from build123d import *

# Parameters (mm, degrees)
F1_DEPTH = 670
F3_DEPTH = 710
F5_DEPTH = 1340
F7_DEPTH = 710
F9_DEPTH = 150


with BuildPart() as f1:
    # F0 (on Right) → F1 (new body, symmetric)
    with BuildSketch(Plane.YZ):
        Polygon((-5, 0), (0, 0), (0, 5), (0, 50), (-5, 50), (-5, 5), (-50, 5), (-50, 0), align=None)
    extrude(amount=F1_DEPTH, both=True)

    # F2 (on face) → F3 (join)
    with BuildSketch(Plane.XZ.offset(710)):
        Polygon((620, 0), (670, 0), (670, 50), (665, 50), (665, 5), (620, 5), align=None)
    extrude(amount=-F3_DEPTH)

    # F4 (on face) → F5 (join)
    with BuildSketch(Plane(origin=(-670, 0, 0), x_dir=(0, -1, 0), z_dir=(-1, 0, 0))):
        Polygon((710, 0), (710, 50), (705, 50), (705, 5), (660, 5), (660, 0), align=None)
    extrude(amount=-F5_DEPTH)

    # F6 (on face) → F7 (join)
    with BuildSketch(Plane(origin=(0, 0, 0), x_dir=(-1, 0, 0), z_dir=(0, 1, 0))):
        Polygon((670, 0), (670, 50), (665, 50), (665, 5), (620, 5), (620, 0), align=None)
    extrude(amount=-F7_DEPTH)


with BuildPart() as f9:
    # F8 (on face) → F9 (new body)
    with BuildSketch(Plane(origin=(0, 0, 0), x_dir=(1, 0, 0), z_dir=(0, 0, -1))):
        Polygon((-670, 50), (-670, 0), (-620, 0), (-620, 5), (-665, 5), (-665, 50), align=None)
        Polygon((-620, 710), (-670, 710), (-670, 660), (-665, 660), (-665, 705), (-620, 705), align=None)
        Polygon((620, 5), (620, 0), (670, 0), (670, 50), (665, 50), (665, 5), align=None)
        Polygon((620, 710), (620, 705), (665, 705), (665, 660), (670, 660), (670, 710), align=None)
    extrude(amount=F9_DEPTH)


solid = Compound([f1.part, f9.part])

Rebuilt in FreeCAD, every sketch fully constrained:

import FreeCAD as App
import Part
import Sketcher
Q = App.Units.Quantity


def add_polygon(sketch, points):
    """Adds a closed chain of lines whose ends are joined by coincident constraints."""
    first, n = sketch.GeometryCount, len(points)
    for a, b in zip(points, points[1:] + points[:1]):
        sketch.addGeometry(Part.LineSegment(App.Vector(*a, 0), App.Vector(*b, 0)), False)
    for i in range(n):
        sketch.addConstraint(Sketcher.Constraint("Coincident", first + i, 2, first + (i + 1) % n, 1))

doc = App.newDocument("Part")
body = doc.addObject("PartDesign::Body", "Body")

# Sketch on YZ plane
sketch1 = body.newObject("Sketcher::SketchObject", "Sketch")
sketch1.AttachmentSupport = (doc.getObject("YZ_Plane"), [""])
sketch1.MapMode = "FlatFace"
add_polygon(sketch1, [(0, 0), (0, 50), (-5, 50), (-5, 5), (-50, 5), (-50, 0)])  # lines 0-5
sketch1.addConstraint(Sketcher.Constraint("Vertical", 0))
sketch1.addConstraint(Sketcher.Constraint("Horizontal", 1))
sketch1.addConstraint(Sketcher.Constraint("Vertical", 2))
sketch1.addConstraint(Sketcher.Constraint("Horizontal", 3))
sketch1.addConstraint(Sketcher.Constraint("Vertical", 4))
sketch1.addConstraint(Sketcher.Constraint("Horizontal", 5))
sketch1.addConstraint(Sketcher.Constraint("Coincident", 5, 2, -1, 1))
sketch1.addConstraint(Sketcher.Constraint("Equal", 5, 0))
sketch1.addConstraint(Sketcher.Constraint("Equal", 3, 2))
sketch1.addConstraint(Sketcher.Constraint("DistanceX", 1, 2, 1, 1, Q("5 mm")))
sketch1.addConstraint(Sketcher.Constraint("DistanceX", 3, 2, 3, 1, Q("45 mm")))
pad1 = body.newObject("PartDesign::Pad", "Pad")
pad1.Profile = sketch1
pad1.Length = 1340
pad1.Midplane = True

# Sketch on XZ plane
sketch2 = body.newObject("Sketcher::SketchObject", "Sketch001")
sketch2.AttachmentSupport = (doc.getObject("XZ_Plane"), [""])
sketch2.MapMode = "FlatFace"
sketch2.AttachmentOffset = App.Placement(App.Vector(0, 0, 710), App.Rotation())
add_polygon(sketch2, [(620, 0), (670, 0), (670, 50), (665, 50), (665, 5), (620, 5)])  # lines 0-5
sketch2.addConstraint(Sketcher.Constraint("Horizontal", 0))
sketch2.addConstraint(Sketcher.Constraint("Vertical", 1))
sketch2.addConstraint(Sketcher.Constraint("Horizontal", 2))
sketch2.addConstraint(Sketcher.Constraint("Vertical", 3))
sketch2.addConstraint(Sketcher.Constraint("Horizontal", 4))
sketch2.addConstraint(Sketcher.Constraint("Vertical", 5))
sketch2.addConstraint(Sketcher.Constraint("PointOnObject", 0, 2, -1))
sketch2.addConstraint(Sketcher.Constraint("Equal", 0, 1))
sketch2.addConstraint(Sketcher.Constraint("Equal", 4, 3))
sketch2.addConstraint(Sketcher.Constraint("DistanceX", 0, 1, 0, 2, Q("50 mm")))
sketch2.addConstraint(Sketcher.Constraint("DistanceX", 2, 2, 2, 1, Q("5 mm")))
sketch2.addConstraint(Sketcher.Constraint("DistanceX", -1, 1, 0, 2, Q("670 mm")))
pad2 = body.newObject("PartDesign::Pad", "Pad001")
pad2.Profile = sketch2
pad2.Length = 710
pad2.Reversed = True

# Sketch on YZ plane
sketch3 = body.newObject("Sketcher::SketchObject", "Sketch002")
sketch3.AttachmentSupport = (doc.getObject("YZ_Plane"), [""])
sketch3.MapMode = "FlatFace"
sketch3.AttachmentOffset = App.Placement(App.Vector(0, 0, -670), App.Rotation())
add_polygon(sketch3, [(-710, 0), (-710, 50), (-705, 50), (-705, 5), (-660, 5), (-660, 0)])  # lines 0-5
sketch3.addConstraint(Sketcher.Constraint("Vertical", 0))
sketch3.addConstraint(Sketcher.Constraint("Horizontal", 1))
sketch3.addConstraint(Sketcher.Constraint("Vertical", 2))
sketch3.addConstraint(Sketcher.Constraint("Horizontal", 3))
sketch3.addConstraint(Sketcher.Constraint("Vertical", 4))
sketch3.addConstraint(Sketcher.Constraint("Horizontal", 5))
sketch3.addConstraint(Sketcher.Constraint("PointOnObject", 4, 2, -1))
sketch3.addConstraint(Sketcher.Constraint("Equal", 5, 0))
sketch3.addConstraint(Sketcher.Constraint("Equal", 3, 2))
sketch3.addConstraint(Sketcher.Constraint("DistanceX", 1, 1, 1, 2, Q("5 mm")))
sketch3.addConstraint(Sketcher.Constraint("DistanceX", 3, 1, 3, 2, Q("45 mm")))
sketch3.addConstraint(Sketcher.Constraint("DistanceX", 0, 2, -1, 1, Q("710 mm")))
pad3 = body.newObject("PartDesign::Pad", "Pad002")
pad3.Profile = sketch3
pad3.Length = 1340

# Sketch on XZ plane
sketch4 = body.newObject("Sketcher::SketchObject", "Sketch003")
sketch4.AttachmentSupport = (doc.getObject("XZ_Plane"), [""])
sketch4.MapMode = "FlatFace"
add_polygon(sketch4, [(-670, 0), (-670, 50), (-665, 50), (-665, 5), (-620, 5), (-620, 0)])  # lines 0-5
sketch4.addConstraint(Sketcher.Constraint("Vertical", 0))
sketch4.addConstraint(Sketcher.Constraint("Horizontal", 1))
sketch4.addConstraint(Sketcher.Constraint("Vertical", 2))
sketch4.addConstraint(Sketcher.Constraint("Horizontal", 3))
sketch4.addConstraint(Sketcher.Constraint("Vertical", 4))
sketch4.addConstraint(Sketcher.Constraint("Horizontal", 5))
sketch4.addConstraint(Sketcher.Constraint("PointOnObject", 4, 2, -1))
sketch4.addConstraint(Sketcher.Constraint("Equal", 5, 0))
sketch4.addConstraint(Sketcher.Constraint("Equal", 3, 2))
sketch4.addConstraint(Sketcher.Constraint("DistanceX", 1, 1, 1, 2, Q("5 mm")))
sketch4.addConstraint(Sketcher.Constraint("DistanceX", 3, 1, 3, 2, Q("45 mm")))
sketch4.addConstraint(Sketcher.Constraint("DistanceX", 0, 2, -1, 1, Q("670 mm")))
pad4 = body.newObject("PartDesign::Pad", "Pad003")
pad4.Profile = sketch4
pad4.Length = 710
body2 = doc.addObject("PartDesign::Body", "Body001")
body2.AllowCompound = True

# Sketch on XY plane
sketch5 = body2.newObject("Sketcher::SketchObject", "Sketch004")
sketch5.AttachmentSupport = (doc.getObject("XY_Plane001"), [""])
sketch5.MapMode = "FlatFace"
add_polygon(sketch5, [(-670, -50), (-670, 0), (-620, 0), (-620, -5), (-665, -5), (-665, -50)])  # lines 0-5
add_polygon(sketch5, [(-620, -710), (-670, -710), (-670, -660), (-665, -660), (-665, -705), (-620, -705)])  # lines 6-11
add_polygon(sketch5, [(620, -5), (620, 0), (670, 0), (670, -50), (665, -50), (665, -5)])  # lines 12-17
add_polygon(sketch5, [(620, -710), (620, -705), (665, -705), (665, -660), (670, -660), (670, -710)])  # lines 18-23
sketch5.addConstraint(Sketcher.Constraint("Vertical", 0))
sketch5.addConstraint(Sketcher.Constraint("Horizontal", 1))
sketch5.addConstraint(Sketcher.Constraint("Vertical", 2))
sketch5.addConstraint(Sketcher.Constraint("Horizontal", 3))
sketch5.addConstraint(Sketcher.Constraint("Vertical", 4))
sketch5.addConstraint(Sketcher.Constraint("Horizontal", 5))
sketch5.addConstraint(Sketcher.Constraint("Horizontal", 6))
sketch5.addConstraint(Sketcher.Constraint("Vertical", 7))
sketch5.addConstraint(Sketcher.Constraint("Horizontal", 8))
sketch5.addConstraint(Sketcher.Constraint("Vertical", 9))
sketch5.addConstraint(Sketcher.Constraint("Horizontal", 10))
sketch5.addConstraint(Sketcher.Constraint("Vertical", 11))
sketch5.addConstraint(Sketcher.Constraint("Vertical", 12))
sketch5.addConstraint(Sketcher.Constraint("Horizontal", 13))
sketch5.addConstraint(Sketcher.Constraint("Vertical", 14))
sketch5.addConstraint(Sketcher.Constraint("Horizontal", 15))
sketch5.addConstraint(Sketcher.Constraint("Vertical", 16))
sketch5.addConstraint(Sketcher.Constraint("Horizontal", 17))
sketch5.addConstraint(Sketcher.Constraint("Vertical", 18))
sketch5.addConstraint(Sketcher.Constraint("Horizontal", 19))
sketch5.addConstraint(Sketcher.Constraint("Vertical", 20))
sketch5.addConstraint(Sketcher.Constraint("Horizontal", 21))
sketch5.addConstraint(Sketcher.Constraint("Vertical", 22))
sketch5.addConstraint(Sketcher.Constraint("Horizontal", 23))
sketch5.addConstraint(Sketcher.Constraint("Symmetric", 1, 2, 12, 2, -1, 1))
sketch5.addConstraint(Sketcher.Constraint("Symmetric", 0, 2, 13, 2, -2))
sketch5.addConstraint(Sketcher.Constraint("Symmetric", 4, 2, 15, 2, -2))
sketch5.addConstraint(Sketcher.Constraint("Symmetric", 10, 2, 18, 2, -2))
sketch5.addConstraint(Sketcher.Constraint("Symmetric", 8, 2, 20, 2, -2))
sketch5.addConstraint(Sketcher.Constraint("Symmetric", 6, 2, 22, 2, -2))
sketch5.addConstraint(Sketcher.Constraint("Horizontal", 3, 2, 16, 2))
sketch5.addConstraint(Sketcher.Constraint("Vertical", 5, 2, 6, 2))
sketch5.addConstraint(Sketcher.Constraint("Vertical", 4, 2, 8, 2))
sketch5.addConstraint(Sketcher.Constraint("Vertical", 2, 2, 10, 2))
sketch5.addConstraint(Sketcher.Constraint("Equal", 23, 0))
sketch5.addConstraint(Sketcher.Constraint("Equal", 21, 2))
sketch5.addConstraint(Sketcher.Constraint("Equal", 0, 7))
sketch5.addConstraint(Sketcher.Constraint("Equal", 4, 9))
sketch5.addConstraint(Sketcher.Constraint("DistanceX", 1, 1, 1, 2, Q("50 mm")))
sketch5.addConstraint(Sketcher.Constraint("DistanceX", 3, 2, 3, 1, Q("45 mm")))
sketch5.addConstraint(Sketcher.Constraint("DistanceX", 0, 2, -1, 1, Q("670 mm")))
sketch5.addConstraint(Sketcher.Constraint("DistanceY", 6, 2, -1, 1, Q("710 mm")))
pad5 = body2.newObject("PartDesign::Pad", "Pad004")
pad5.Profile = sketch5
pad5.Length = 150
pad5.Reversed = True

doc.recompute()
